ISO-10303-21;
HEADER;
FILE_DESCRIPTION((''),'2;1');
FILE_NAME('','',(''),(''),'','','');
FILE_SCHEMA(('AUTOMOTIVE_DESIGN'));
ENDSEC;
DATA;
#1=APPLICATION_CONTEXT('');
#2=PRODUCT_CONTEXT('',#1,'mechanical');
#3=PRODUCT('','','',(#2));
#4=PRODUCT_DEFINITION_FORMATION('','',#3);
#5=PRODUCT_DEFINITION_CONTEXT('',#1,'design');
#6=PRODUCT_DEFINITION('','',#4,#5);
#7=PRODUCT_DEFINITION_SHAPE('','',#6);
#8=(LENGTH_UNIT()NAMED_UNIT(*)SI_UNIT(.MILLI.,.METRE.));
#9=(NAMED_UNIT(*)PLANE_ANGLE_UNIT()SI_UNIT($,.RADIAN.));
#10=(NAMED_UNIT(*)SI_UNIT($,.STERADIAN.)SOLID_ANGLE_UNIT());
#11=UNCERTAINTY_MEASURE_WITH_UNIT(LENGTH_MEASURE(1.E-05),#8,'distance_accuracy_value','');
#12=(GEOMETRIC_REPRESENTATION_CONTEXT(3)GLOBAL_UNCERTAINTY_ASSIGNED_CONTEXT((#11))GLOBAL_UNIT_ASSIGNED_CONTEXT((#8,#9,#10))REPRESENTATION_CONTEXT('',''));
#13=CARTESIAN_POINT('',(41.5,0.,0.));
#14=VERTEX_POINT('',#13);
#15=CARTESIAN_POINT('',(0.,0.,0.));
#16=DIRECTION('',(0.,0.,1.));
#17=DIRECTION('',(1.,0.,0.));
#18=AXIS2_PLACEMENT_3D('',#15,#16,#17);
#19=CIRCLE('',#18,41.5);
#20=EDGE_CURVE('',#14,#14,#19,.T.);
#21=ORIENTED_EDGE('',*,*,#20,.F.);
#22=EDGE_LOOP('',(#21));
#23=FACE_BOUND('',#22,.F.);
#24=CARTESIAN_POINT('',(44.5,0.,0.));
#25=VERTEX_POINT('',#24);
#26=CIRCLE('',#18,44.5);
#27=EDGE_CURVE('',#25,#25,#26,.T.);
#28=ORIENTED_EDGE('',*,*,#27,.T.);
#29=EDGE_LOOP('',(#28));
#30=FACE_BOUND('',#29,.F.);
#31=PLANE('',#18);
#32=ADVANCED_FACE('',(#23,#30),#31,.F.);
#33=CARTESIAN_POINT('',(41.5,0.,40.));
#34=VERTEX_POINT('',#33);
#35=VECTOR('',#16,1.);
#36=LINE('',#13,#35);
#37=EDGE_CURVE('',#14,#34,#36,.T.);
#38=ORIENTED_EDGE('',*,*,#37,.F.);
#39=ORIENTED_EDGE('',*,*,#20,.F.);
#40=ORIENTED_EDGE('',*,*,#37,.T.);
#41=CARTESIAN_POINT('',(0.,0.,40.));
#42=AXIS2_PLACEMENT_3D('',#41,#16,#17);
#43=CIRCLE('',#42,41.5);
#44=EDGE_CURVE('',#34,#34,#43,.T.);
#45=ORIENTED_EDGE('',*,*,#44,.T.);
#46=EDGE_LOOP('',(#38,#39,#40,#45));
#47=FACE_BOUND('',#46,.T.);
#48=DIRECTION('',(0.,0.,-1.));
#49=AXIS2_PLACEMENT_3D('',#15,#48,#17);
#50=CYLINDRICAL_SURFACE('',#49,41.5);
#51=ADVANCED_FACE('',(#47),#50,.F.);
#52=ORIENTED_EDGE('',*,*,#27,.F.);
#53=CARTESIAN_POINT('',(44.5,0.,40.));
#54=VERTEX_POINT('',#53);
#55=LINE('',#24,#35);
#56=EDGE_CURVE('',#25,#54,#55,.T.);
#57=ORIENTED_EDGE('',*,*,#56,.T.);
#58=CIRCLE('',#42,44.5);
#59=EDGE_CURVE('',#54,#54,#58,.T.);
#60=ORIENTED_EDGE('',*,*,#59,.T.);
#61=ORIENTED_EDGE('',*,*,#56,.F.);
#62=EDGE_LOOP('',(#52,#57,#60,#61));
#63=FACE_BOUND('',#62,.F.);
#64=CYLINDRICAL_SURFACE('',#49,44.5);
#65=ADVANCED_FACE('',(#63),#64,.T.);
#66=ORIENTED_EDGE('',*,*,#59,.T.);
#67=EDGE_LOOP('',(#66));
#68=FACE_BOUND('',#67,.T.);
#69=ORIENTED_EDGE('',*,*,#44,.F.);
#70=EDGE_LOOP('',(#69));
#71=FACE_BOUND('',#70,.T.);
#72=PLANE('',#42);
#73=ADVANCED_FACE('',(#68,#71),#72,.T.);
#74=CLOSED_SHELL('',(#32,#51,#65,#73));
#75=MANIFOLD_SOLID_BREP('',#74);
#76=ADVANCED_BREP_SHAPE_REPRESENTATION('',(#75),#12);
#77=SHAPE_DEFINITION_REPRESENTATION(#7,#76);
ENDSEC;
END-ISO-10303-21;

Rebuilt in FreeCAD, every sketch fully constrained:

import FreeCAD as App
import Part
import Sketcher

V = App.Vector

doc = App.newDocument("Part")
params = doc.addObject("Spreadsheet::Sheet", "Params")
for row, (alias, value) in enumerate([
    ("sketch1_diameter", "89 mm"),
    ("sketch1_diameter2", "83 mm"),
    ("pad1_length", "40 mm"),
], start=1):
    params.set(f"A{row}", alias)
    params.set(f"B{row}", "=" + value)
    params.setAlias(f"B{row}", alias)

body = doc.addObject("PartDesign::Body", "Body")

sketch1 = doc.addObject("Sketcher::SketchObject", "Sketch")
body.addObject(sketch1)
sketch1.AttachmentSupport = (doc.XY_Plane, [""])
sketch1.MapMode = "FlatFace"
sketch1.addGeometry(Part.Circle(V(0, 0, 0), V(0, 0, 1), 44), False)
sketch1.addGeometry(Part.Circle(V(0, 0, 0), V(0, 0, 1), 42), False)
sketch1.addConstraint(Sketcher.Constraint("Coincident", 0, 3, -1, 1))
sketch1.addConstraint(Sketcher.Constraint("Coincident", 1, 3, -1, 1))
sketch1.addConstraint(Sketcher.Constraint("Diameter", 0, 89.0))
sketch1.addConstraint(Sketcher.Constraint("Diameter", 1, 83.0))
sketch1.setExpression("Constraints[2]", "Params.sketch1_diameter")
sketch1.setExpression("Constraints[3]", "Params.sketch1_diameter2")
pad1 = doc.addObject("PartDesign::Pad", "Pad")
body.addObject(pad1)
pad1.Profile = sketch1
pad1.setExpression("Length", "Params.pad1_length")

doc.recompute()
